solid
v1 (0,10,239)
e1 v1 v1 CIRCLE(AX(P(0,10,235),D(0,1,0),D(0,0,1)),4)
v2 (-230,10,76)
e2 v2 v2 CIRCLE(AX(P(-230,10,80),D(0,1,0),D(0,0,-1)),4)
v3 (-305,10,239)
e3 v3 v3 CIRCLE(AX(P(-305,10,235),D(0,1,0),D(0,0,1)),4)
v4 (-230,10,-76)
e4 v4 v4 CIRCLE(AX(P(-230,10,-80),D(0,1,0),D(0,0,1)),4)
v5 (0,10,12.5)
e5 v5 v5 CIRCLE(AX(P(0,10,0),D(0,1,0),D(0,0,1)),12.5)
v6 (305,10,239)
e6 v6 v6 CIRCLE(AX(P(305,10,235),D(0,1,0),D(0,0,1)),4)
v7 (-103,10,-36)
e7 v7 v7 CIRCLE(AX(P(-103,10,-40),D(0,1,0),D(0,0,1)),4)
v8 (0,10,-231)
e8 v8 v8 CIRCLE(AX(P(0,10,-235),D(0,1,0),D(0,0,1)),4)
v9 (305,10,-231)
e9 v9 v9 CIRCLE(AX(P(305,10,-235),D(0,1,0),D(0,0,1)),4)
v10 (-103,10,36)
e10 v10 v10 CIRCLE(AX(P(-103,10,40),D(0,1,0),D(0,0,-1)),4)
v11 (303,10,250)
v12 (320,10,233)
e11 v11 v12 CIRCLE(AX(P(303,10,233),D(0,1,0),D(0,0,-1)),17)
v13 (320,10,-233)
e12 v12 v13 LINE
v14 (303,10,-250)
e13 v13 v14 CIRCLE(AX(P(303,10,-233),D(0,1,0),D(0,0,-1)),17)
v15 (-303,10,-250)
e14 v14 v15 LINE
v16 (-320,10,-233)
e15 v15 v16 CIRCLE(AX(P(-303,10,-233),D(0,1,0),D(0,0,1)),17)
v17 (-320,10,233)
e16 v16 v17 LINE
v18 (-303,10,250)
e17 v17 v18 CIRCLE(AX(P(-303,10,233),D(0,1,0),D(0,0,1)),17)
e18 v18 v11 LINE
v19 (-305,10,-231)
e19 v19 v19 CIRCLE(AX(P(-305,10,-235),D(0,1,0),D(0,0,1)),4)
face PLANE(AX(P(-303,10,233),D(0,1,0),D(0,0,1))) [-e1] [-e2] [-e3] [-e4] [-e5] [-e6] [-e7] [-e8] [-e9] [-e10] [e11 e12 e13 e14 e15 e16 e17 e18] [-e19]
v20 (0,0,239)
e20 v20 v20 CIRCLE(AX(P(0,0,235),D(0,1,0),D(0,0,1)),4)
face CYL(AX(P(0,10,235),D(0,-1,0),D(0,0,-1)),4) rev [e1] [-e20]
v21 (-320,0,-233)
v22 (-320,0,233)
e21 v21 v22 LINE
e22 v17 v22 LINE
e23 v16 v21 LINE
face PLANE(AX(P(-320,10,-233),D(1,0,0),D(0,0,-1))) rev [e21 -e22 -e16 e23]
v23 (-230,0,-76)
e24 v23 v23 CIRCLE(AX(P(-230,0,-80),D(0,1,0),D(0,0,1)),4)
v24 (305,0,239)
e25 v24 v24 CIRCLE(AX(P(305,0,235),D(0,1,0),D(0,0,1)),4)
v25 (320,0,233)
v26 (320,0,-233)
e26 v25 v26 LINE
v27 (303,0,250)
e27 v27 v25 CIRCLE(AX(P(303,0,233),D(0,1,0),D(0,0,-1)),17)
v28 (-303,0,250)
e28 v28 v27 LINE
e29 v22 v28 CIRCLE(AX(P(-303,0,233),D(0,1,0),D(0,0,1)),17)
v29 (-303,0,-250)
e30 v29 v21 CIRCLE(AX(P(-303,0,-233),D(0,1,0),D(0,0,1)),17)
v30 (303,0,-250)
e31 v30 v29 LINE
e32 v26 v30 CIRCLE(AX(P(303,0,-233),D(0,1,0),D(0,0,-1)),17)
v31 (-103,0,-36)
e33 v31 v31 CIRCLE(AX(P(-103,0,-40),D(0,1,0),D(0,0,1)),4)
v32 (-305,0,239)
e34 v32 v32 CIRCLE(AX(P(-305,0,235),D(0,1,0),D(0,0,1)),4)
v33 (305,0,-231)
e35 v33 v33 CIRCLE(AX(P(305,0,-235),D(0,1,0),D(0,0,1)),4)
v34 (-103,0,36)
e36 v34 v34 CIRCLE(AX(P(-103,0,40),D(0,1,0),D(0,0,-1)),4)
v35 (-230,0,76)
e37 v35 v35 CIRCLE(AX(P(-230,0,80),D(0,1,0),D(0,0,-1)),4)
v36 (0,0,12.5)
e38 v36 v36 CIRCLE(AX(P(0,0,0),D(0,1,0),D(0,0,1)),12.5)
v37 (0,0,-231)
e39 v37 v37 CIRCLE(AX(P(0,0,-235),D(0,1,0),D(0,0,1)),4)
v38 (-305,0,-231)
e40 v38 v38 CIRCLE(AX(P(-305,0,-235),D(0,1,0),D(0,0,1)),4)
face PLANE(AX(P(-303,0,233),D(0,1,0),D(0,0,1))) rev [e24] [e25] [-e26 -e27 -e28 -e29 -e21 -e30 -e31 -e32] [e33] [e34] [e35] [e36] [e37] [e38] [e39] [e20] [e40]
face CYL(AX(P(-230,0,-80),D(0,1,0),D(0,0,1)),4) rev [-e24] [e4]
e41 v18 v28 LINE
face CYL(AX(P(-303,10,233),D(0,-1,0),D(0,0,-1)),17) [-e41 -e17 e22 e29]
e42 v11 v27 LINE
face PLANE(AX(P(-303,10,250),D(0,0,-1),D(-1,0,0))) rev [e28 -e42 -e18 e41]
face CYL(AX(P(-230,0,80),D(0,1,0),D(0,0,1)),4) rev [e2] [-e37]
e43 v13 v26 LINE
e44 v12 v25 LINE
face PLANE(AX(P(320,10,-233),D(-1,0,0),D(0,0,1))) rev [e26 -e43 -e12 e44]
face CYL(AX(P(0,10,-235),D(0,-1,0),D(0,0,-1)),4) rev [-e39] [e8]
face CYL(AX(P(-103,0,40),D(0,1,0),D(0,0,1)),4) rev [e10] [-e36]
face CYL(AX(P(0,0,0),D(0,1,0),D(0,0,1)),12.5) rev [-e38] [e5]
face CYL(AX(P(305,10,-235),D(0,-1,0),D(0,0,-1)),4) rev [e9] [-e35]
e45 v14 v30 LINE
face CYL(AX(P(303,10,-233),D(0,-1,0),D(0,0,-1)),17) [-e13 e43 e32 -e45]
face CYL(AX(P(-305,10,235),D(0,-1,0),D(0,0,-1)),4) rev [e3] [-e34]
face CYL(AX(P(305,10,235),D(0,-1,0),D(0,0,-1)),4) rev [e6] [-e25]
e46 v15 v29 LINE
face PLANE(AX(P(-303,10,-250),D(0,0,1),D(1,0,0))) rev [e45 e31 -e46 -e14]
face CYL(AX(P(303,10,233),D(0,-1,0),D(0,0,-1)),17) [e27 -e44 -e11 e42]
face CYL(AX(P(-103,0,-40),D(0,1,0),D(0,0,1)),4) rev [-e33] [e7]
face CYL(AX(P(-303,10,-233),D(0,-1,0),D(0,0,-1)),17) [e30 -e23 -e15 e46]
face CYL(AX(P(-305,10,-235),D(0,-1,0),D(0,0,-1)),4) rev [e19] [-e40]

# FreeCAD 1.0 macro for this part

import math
import FreeCAD as App
import Part
import Sketcher
from FreeCAD import Vector
Q = App.Units.Quantity

doc = App.newDocument("Part")
body = doc.addObject("PartDesign::Body", "Body")

# Sketch on XZ plane
sketch1 = body.newObject("Sketcher::SketchObject", "Sketch")
sketch1.AttachmentSupport = (doc.getObject("XZ_Plane"), [""])
sketch1.MapMode = "FlatFace"
sketch1.addGeometry([
    Part.LineSegment(Vector(303, -250, 0), Vector(-303, -250, 0)),  # 0
    Part.ArcOfCircle(Part.Circle(Vector(-303, -233, 0), Vector(0, 0, 1), 17), math.radians(-180), math.radians(-90)),  # 1
    Part.LineSegment(Vector(-320, -233, 0), Vector(-320, 233, 0)),  # 2
    Part.ArcOfCircle(Part.Circle(Vector(-303, 233, 0), Vector(0, 0, 1), 17), math.radians(90), math.radians(180)),  # 3
    Part.LineSegment(Vector(-303, 250, 0), Vector(303, 250, 0)),  # 4
    Part.ArcOfCircle(Part.Circle(Vector(303, 233, 0), Vector(0, 0, 1), 17), math.radians(0), math.radians(90)),  # 5
    Part.LineSegment(Vector(320, 233, 0), Vector(320, -233, 0)),  # 6
    Part.ArcOfCircle(Part.Circle(Vector(303, -233, 0), Vector(0, 0, 1), 17), math.radians(-90), math.radians(0)),  # 7
    Part.Circle(Vector(305, 235, 0), Vector(0, 0, 1), 4),  # 8
    Part.Circle(Vector(0, 235, 0), Vector(0, 0, 1), 4),  # 9
    Part.Circle(Vector(-305, 235, 0), Vector(0, 0, 1), 4),  # 10
    Part.Circle(Vector(305, -235, 0), Vector(0, 0, 1), 4),  # 11
    Part.Circle(Vector(0, -235, 0), Vector(0, 0, 1), 4),  # 12
    Part.Circle(Vector(-305, -235, 0), Vector(0, 0, 1), 4),  # 13
], False)
sketch1.addConstraint([
    Sketcher.Constraint("Tangent", 0, 2, 1, 2),
    Sketcher.Constraint("Tangent", 1, 1, 2, 1),
    Sketcher.Constraint("Tangent", 2, 2, 3, 2),
    Sketcher.Constraint("Tangent", 3, 1, 4, 1),
    Sketcher.Constraint("Tangent", 4, 2, 5, 2),
    Sketcher.Constraint("Tangent", 5, 1, 6, 1),
    Sketcher.Constraint("Tangent", 6, 2, 7, 2),
    Sketcher.Constraint("Tangent", 7, 1, 0, 1),
    Sketcher.Constraint("Horizontal", 0),
    Sketcher.Constraint("Vertical", 2),
    Sketcher.Constraint("Horizontal", 4),
    Sketcher.Constraint("Vertical", 6),
    Sketcher.Constraint("Equal", 1, 3),
    Sketcher.Constraint("Equal", 3, 5),
    Sketcher.Constraint("Equal", 5, 7),
    Sketcher.Constraint("Equal", 8, 9),
    Sketcher.Constraint("Equal", 9, 10),
    Sketcher.Constraint("Equal", 10, 11),
    Sketcher.Constraint("Equal", 11, 12),
    Sketcher.Constraint("Equal", 12, 13),
    Sketcher.Constraint("Symmetric", 1, 3, 5, 3, -1, 1),
    Sketcher.Constraint("Symmetric", 10, 3, 11, 3, -1, 1),
    Sketcher.Constraint("Symmetric", 9, 3, 12, 3, -1, 1),
    Sketcher.Constraint("Symmetric", 8, 3, 13, 3, -1, 1),
    Sketcher.Constraint("Symmetric", 8, 3, 10, 3, -2),
    Sketcher.Constraint("PointOnObject", 9, 3, -2),
    Sketcher.Constraint("Horizontal", 8, 3, 9, 3),
    Sketcher.Constraint("Diameter", 8, Q("8 mm")),
    Sketcher.Constraint("Radius", 1, Q("17 mm")),
    Sketcher.Constraint("DistanceX", 0, 2, 0, 1, Q("606 mm")),
    Sketcher.Constraint("DistanceY", 2, 1, 2, 2, Q("466 mm")),
    Sketcher.Constraint("DistanceX", -1, 1, 8, 3, Q("305 mm")),
    Sketcher.Constraint("DistanceY", -1, 1, 8, 3, Q("235 mm")),
])
pad1 = body.newObject("PartDesign::Pad", "Pad")
pad1.Profile = sketch1
pad1.Length = 10
pad1.Reversed = True

# Sketch on XZ plane
sketch2 = body.newObject("Sketcher::SketchObject", "Sketch001")
sketch2.AttachmentSupport = (doc.getObject("XZ_Plane"), [""])
sketch2.MapMode = "FlatFace"
sketch2.AttachmentOffset = App.Placement(Vector(0, 0, -10), App.Rotation())
sketch2.addGeometry([
    Part.Circle(Vector(-230, -80, 0), Vector(0, 0, 1), 4),  # 0
    Part.Circle(Vector(-103, -40, 0), Vector(0, 0, 1), 4),  # 1
    Part.Circle(Vector(0, 0, 0), Vector(0, 0, 1), 12.5),  # 2
    Part.Circle(Vector(-103, 40, 0), Vector(0, 0, 1), 4),  # 3
    Part.Circle(Vector(-230, 80, 0), Vector(0, 0, 1), 4),  # 4
], False)
sketch2.addConstraint([
    Sketcher.Constraint("Coincident", 2, 3, -1, 1),
    Sketcher.Constraint("Equal", 0, 1),
    Sketcher.Constraint("Equal", 1, 3),
    Sketcher.Constraint("Equal", 3, 4),
    Sketcher.Constraint("Symmetric", 1, 3, 3, 3, -1),
    Sketcher.Constraint("Symmetric", 0, 3, 4, 3, -1),
    Sketcher.Constraint("Diameter", 0, Q("8 mm")),
    Sketcher.Constraint("Diameter", 2, Q("25 mm")),
    Sketcher.Constraint("DistanceX", 0, 3, -1, 1, Q("230 mm")),
    Sketcher.Constraint("DistanceY", 0, 3, -1, 1, Q("80 mm")),
    Sketcher.Constraint("DistanceX", 1, 3, -1, 1, Q("103 mm")),
    Sketcher.Constraint("DistanceY", 1, 3, -1, 1, Q("40 mm")),
])
pocket1 = body.newObject("PartDesign::Pocket", "Pocket")
pocket1.Profile = sketch2
pocket1.Length = 10
pocket1.Reversed = True

doc.recompute()
